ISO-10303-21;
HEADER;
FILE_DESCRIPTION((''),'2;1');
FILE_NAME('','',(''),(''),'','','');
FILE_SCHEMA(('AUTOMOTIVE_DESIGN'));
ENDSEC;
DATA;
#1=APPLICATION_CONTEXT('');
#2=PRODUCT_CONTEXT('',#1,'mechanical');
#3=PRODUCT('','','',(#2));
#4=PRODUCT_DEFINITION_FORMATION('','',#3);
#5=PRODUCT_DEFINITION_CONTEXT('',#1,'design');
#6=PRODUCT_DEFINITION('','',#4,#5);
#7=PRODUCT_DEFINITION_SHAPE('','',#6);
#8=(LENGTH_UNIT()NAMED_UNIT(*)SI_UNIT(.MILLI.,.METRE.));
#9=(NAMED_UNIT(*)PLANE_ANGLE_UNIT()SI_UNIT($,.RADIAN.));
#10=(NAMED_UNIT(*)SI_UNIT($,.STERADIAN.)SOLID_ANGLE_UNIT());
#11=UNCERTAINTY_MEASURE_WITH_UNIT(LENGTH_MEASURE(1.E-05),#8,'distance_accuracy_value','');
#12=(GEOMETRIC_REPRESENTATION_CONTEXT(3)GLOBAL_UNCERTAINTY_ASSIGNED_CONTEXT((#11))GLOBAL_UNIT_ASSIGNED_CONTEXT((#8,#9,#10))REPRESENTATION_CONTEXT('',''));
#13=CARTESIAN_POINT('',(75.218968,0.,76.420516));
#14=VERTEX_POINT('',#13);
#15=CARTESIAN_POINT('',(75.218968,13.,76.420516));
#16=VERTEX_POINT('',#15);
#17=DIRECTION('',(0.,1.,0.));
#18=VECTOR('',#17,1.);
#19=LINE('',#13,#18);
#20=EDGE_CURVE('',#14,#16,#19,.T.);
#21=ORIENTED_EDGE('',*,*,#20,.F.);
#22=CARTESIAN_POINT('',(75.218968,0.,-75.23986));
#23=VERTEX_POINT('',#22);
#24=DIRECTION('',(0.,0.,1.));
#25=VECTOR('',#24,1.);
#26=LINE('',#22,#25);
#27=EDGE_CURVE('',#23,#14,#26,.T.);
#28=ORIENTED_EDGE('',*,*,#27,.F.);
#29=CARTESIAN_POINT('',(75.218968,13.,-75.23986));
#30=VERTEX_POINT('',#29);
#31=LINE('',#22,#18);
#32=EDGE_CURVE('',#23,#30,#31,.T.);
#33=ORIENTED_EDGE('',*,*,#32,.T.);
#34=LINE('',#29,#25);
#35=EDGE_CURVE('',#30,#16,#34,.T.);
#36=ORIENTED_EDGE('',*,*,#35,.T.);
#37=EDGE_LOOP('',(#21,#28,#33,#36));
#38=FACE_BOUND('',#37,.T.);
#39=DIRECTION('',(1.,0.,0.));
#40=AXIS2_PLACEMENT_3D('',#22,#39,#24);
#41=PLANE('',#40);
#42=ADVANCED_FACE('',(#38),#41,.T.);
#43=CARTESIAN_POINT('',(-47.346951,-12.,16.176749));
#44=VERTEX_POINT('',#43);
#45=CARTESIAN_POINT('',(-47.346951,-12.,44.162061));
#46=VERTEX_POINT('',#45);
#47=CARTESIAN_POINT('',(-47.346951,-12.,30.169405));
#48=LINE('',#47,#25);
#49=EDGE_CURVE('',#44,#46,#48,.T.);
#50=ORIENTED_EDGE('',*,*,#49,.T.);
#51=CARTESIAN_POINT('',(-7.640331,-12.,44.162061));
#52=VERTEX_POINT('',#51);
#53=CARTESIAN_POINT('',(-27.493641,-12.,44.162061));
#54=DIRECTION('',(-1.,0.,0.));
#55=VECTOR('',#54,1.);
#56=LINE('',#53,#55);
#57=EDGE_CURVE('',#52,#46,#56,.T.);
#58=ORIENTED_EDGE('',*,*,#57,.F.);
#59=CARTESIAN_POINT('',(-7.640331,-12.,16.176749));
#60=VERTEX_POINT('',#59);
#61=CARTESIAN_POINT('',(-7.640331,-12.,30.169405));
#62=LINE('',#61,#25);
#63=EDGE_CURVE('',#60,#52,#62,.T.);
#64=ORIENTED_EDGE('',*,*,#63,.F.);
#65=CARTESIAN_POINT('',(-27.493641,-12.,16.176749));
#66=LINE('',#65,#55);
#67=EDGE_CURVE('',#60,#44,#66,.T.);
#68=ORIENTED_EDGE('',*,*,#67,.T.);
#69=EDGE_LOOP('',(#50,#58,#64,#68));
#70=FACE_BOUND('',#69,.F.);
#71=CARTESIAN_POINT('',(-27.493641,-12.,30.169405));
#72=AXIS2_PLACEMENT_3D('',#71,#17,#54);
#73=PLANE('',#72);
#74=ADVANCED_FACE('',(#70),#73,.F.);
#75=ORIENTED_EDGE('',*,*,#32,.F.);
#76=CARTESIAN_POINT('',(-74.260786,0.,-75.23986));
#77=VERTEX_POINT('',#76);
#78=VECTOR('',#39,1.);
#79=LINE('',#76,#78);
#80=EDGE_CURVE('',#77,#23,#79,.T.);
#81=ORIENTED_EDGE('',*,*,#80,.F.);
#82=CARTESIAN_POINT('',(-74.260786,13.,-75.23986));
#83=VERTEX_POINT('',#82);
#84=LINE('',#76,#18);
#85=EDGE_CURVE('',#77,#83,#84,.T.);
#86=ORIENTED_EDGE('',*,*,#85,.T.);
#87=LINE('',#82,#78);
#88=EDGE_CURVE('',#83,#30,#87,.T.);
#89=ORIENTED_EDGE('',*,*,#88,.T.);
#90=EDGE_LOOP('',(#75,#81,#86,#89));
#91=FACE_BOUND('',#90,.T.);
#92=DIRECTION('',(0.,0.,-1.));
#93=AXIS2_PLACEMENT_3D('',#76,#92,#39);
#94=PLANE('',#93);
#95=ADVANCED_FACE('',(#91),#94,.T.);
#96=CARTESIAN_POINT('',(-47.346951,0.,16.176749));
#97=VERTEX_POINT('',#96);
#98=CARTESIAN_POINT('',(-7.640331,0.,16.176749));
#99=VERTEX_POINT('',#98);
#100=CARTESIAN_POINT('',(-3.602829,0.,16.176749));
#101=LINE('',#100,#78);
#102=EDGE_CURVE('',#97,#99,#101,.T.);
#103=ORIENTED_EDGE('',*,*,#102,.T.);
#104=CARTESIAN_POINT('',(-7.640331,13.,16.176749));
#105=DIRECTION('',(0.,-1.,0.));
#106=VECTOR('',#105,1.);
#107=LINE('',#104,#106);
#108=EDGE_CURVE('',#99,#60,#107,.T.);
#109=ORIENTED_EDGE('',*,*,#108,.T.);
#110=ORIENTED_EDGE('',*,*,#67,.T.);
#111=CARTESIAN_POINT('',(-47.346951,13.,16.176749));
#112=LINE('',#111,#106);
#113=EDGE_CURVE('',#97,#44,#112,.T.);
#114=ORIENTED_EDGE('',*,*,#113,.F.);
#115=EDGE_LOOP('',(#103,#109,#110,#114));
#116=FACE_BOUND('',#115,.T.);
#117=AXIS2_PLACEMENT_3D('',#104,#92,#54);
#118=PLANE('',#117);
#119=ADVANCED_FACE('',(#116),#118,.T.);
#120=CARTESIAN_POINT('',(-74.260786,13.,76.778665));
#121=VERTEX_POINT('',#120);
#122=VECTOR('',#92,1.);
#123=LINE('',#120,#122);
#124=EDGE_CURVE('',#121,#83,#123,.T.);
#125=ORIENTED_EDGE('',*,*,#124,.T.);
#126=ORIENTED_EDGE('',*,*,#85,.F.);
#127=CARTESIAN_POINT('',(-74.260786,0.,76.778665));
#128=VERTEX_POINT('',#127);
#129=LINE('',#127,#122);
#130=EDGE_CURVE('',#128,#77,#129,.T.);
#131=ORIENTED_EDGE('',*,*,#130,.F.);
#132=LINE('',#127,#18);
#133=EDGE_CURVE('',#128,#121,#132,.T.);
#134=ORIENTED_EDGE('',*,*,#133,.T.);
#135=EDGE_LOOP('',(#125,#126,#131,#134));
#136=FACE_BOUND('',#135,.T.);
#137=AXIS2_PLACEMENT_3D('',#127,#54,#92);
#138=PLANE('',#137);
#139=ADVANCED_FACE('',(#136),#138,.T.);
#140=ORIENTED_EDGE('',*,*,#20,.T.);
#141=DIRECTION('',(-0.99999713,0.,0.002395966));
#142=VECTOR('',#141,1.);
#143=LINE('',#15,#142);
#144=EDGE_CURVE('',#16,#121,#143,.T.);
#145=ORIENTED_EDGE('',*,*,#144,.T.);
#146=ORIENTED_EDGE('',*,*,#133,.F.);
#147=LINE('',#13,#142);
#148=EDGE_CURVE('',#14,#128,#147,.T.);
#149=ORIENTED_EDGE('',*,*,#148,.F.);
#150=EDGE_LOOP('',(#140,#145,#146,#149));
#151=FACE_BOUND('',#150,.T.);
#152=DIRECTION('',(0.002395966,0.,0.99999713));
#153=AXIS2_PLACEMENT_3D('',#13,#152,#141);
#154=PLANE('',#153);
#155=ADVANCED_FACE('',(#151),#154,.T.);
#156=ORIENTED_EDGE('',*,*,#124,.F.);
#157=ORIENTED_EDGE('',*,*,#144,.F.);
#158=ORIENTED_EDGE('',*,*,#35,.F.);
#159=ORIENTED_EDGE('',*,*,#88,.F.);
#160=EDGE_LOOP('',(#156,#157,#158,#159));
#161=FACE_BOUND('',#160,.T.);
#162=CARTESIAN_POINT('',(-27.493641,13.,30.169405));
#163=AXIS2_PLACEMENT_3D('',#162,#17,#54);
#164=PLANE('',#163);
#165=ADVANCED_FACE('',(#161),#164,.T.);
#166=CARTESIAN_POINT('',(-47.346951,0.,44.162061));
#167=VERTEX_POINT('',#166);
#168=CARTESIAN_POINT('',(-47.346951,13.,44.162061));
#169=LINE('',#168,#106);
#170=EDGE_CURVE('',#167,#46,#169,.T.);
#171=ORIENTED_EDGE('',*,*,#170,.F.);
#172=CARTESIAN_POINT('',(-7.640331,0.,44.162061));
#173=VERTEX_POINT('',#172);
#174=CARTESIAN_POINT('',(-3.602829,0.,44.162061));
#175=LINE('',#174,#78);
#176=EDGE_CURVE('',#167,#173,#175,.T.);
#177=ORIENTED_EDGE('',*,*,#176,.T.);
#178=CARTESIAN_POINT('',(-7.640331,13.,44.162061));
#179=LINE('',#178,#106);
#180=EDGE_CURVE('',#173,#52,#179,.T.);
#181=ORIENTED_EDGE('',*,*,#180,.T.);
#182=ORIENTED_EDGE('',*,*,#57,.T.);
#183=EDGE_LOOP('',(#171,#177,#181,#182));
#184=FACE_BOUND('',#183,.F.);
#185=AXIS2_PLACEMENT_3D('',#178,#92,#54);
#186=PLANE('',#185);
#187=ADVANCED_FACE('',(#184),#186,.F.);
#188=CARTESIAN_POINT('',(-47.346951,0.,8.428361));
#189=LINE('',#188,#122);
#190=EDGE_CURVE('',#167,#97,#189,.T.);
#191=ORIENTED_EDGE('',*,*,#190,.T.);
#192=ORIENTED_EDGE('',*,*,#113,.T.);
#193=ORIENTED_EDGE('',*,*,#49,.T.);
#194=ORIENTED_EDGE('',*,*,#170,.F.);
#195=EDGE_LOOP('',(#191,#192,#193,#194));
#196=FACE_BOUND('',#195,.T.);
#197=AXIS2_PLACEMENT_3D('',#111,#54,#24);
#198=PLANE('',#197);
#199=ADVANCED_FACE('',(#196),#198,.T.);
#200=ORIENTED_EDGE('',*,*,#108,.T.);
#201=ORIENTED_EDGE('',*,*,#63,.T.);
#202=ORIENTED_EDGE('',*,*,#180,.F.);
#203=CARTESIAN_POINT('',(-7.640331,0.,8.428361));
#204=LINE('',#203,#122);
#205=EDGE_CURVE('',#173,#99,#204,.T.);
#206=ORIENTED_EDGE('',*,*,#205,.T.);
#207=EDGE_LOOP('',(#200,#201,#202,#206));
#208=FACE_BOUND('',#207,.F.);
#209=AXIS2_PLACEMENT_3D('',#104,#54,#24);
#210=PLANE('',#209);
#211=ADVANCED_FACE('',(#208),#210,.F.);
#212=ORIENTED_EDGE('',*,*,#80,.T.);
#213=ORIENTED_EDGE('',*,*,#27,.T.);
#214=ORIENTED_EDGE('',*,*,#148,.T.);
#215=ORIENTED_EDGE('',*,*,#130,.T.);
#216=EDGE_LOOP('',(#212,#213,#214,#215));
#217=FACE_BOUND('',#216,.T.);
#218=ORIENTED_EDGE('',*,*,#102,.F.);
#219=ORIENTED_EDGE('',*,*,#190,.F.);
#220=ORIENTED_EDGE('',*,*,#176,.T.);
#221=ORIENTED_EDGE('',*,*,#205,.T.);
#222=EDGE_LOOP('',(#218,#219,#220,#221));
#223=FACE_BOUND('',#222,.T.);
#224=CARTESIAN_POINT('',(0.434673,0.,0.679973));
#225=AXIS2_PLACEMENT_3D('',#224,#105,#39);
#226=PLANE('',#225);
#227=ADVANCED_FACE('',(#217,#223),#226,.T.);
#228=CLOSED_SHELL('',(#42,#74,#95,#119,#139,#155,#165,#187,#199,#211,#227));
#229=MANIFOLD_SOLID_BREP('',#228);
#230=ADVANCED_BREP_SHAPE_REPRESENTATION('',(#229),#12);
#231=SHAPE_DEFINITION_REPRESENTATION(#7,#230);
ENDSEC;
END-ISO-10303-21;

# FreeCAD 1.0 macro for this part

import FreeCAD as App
import Part
import Sketcher
from FreeCAD import Vector
Q = App.Units.Quantity


def add_polygon(sketch, points):
    """Adds a closed chain of lines whose ends are joined by coincident constraints."""
    first, n = sketch.GeometryCount, len(points)
    for a, b in zip(points, points[1:] + points[:1]):
        sketch.addGeometry(Part.LineSegment(App.Vector(*a, 0), App.Vector(*b, 0)), False)
    for i in range(n):
        sketch.addConstraint(Sketcher.Constraint("Coincident", first + i, 2, first + (i + 1) % n, 1))

doc = App.newDocument("Part")
body = doc.addObject("PartDesign::Body", "Body")

sketch1 = body.newObject("Sketcher::SketchObject", "Sketch")
sketch1.AttachmentSupport = (doc.getObject("XZ_Plane"), [""])
sketch1.MapMode = "FlatFace"
add_polygon(sketch1, [(75.218968, 76.420516), (-74.260786, 76.778665), (-74.260786, -75.23986), (75.218968, -75.23986)])
sketch1.addConstraint([
    Sketcher.Constraint("Vertical", 1),
    Sketcher.Constraint("Horizontal", 2),
    Sketcher.Constraint("Vertical", 3),
    Sketcher.Constraint("DistanceX", 2, 1, 2, 2, Q("149.479754 mm")),
    Sketcher.Constraint("DistanceY", 1, 2, 1, 1, Q("152.018525 mm")),
    Sketcher.Constraint("DistanceY", 3, 1, 3, 2, Q("151.660375 mm")),
    Sketcher.Constraint("DistanceY", 1, 2, -1, 1, Q("75.23986 mm")),
    Sketcher.Constraint("DistanceX", -1, 1, 2, 2, Q("75.218968 mm")),
])
pad1 = body.newObject("PartDesign::Pad", "Pad")
pad1.Profile = sketch1
pad1.Length = 13
pad1.Reversed = True

sketch2 = body.newObject("Sketcher::SketchObject", "Sketch001")
sketch2.AttachmentSupport = (doc.getObject("XZ_Plane"), [""])
sketch2.MapMode = "FlatFace"
add_polygon(sketch2, [(5.123079, 43.900687), (5.123079, 13.280831), (44.649459, 13.280831), (44.649459, 43.900687)])
sketch2.addConstraint([
    Sketcher.Constraint("Vertical", 0),
    Sketcher.Constraint("Horizontal", 1),
    Sketcher.Constraint("Vertical", 2),
    Sketcher.Constraint("Horizontal", 3),
    Sketcher.Constraint("DistanceX", 1, 1, 1, 2, Q("39.526381 mm")),
    Sketcher.Constraint("DistanceY", 0, 2, 0, 1, Q("30.619856 mm")),
    Sketcher.Constraint("DistanceX", -1, 1, 0, 2, Q("5.123079 mm")),
    Sketcher.Constraint("DistanceY", -1, 1, 0, 2, Q("13.280831 mm")),
])
pad2 = body.newObject("PartDesign::Pad", "Pad001")
pad2.Profile = sketch2
pad2.Length = 12
pad2.Reversed = True

sketch3 = body.newObject("Sketcher::SketchObject", "Sketch002")
sketch3.AttachmentSupport = (doc.getObject("XZ_Plane"), [""])
sketch3.MapMode = "FlatFace"
sketch3.AttachmentOffset = App.Placement(Vector(0, 0, -13), App.Rotation())
add_polygon(sketch3, [(-7.640331, 44.162061), (-7.640331, 16.176749), (-47.346951, 16.176749), (-47.346951, 44.162061)])
sketch3.addConstraint([
    Sketcher.Constraint("Vertical", 0),
    Sketcher.Constraint("Horizontal", 1),
    Sketcher.Constraint("Vertical", 2),
    Sketcher.Constraint("Horizontal", 3),
    Sketcher.Constraint("DistanceX", 1, 2, 1, 1, Q("39.706619 mm")),
    Sketcher.Constraint("DistanceY", 0, 2, 0, 1, Q("27.985312 mm")),
    Sketcher.Constraint("DistanceX", 0, 2, -1, 1, Q("7.640331 mm")),
    Sketcher.Constraint("DistanceY", -1, 1, 0, 2, Q("16.176749 mm")),
])
pad3 = body.newObject("PartDesign::Pad", "Pad002")
pad3.Profile = sketch3
pad3.Length = 25

doc.recompute()
